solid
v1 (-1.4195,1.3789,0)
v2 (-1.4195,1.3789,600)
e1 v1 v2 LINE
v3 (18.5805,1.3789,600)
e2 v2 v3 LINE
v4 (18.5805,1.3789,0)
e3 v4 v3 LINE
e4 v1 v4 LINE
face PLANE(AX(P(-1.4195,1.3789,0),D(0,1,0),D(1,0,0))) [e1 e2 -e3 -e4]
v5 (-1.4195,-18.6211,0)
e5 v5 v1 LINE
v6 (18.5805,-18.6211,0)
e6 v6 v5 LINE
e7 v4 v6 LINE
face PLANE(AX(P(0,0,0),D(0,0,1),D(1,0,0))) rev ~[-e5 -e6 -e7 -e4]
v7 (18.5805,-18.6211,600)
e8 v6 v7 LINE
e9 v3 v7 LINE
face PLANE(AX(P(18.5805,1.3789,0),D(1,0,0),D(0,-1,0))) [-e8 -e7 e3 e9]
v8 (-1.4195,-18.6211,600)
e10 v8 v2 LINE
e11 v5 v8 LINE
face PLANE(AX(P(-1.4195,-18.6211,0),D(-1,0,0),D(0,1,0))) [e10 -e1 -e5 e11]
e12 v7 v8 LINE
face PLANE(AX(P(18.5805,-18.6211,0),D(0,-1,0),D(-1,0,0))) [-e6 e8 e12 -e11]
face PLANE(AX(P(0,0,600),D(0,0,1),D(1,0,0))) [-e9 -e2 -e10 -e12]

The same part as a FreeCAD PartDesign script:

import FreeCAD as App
import Part
import Sketcher

V = App.Vector

doc = App.newDocument("Part")
body = doc.addObject("PartDesign::Body", "Body")

# Sketch on XY plane
sketch1 = doc.addObject("Sketcher::SketchObject", "Sketch")
body.addObject(sketch1)
sketch1.AttachmentSupport = (doc.XY_Plane, [""])
sketch1.MapMode = "FlatFace"
sketch1.addGeometry([
    Part.LineSegment(V(19, 1, 0), V(-1, 1, 0)),
    Part.LineSegment(V(-1, 1, 0), V(-1, -19, 0)),
    Part.LineSegment(V(-1, -19, 0), V(19, -19, 0)),
    Part.LineSegment(V(19, -19, 0), V(19, 1, 0)),
], False)
sketch1.addConstraint([
    Sketcher.Constraint("Coincident", 0, 2, 1, 1),
    Sketcher.Constraint("Coincident", 1, 2, 2, 1),
    Sketcher.Constraint("Coincident", 2, 2, 3, 1),
    Sketcher.Constraint("Coincident", 3, 2, 0, 1),
    Sketcher.Constraint("Horizontal", 0),
    Sketcher.Constraint("Vertical", 1),
    Sketcher.Constraint("Horizontal", 2),
    Sketcher.Constraint("Vertical", 3),
    Sketcher.Constraint("Equal", 2, 1),
    Sketcher.Constraint("DistanceX", 0, 2, 0, 1, 20.0),
    Sketcher.Constraint("DistanceY", -1, 1, 0, 2, 1.379),
    Sketcher.Constraint("DistanceX", 0, 2, -1, 1, 1.4195),
])
pad1 = doc.addObject("PartDesign::Pad", "Pad")
body.addObject(pad1)
pad1.Profile = sketch1
pad1.Length = 600

doc.recompute()
